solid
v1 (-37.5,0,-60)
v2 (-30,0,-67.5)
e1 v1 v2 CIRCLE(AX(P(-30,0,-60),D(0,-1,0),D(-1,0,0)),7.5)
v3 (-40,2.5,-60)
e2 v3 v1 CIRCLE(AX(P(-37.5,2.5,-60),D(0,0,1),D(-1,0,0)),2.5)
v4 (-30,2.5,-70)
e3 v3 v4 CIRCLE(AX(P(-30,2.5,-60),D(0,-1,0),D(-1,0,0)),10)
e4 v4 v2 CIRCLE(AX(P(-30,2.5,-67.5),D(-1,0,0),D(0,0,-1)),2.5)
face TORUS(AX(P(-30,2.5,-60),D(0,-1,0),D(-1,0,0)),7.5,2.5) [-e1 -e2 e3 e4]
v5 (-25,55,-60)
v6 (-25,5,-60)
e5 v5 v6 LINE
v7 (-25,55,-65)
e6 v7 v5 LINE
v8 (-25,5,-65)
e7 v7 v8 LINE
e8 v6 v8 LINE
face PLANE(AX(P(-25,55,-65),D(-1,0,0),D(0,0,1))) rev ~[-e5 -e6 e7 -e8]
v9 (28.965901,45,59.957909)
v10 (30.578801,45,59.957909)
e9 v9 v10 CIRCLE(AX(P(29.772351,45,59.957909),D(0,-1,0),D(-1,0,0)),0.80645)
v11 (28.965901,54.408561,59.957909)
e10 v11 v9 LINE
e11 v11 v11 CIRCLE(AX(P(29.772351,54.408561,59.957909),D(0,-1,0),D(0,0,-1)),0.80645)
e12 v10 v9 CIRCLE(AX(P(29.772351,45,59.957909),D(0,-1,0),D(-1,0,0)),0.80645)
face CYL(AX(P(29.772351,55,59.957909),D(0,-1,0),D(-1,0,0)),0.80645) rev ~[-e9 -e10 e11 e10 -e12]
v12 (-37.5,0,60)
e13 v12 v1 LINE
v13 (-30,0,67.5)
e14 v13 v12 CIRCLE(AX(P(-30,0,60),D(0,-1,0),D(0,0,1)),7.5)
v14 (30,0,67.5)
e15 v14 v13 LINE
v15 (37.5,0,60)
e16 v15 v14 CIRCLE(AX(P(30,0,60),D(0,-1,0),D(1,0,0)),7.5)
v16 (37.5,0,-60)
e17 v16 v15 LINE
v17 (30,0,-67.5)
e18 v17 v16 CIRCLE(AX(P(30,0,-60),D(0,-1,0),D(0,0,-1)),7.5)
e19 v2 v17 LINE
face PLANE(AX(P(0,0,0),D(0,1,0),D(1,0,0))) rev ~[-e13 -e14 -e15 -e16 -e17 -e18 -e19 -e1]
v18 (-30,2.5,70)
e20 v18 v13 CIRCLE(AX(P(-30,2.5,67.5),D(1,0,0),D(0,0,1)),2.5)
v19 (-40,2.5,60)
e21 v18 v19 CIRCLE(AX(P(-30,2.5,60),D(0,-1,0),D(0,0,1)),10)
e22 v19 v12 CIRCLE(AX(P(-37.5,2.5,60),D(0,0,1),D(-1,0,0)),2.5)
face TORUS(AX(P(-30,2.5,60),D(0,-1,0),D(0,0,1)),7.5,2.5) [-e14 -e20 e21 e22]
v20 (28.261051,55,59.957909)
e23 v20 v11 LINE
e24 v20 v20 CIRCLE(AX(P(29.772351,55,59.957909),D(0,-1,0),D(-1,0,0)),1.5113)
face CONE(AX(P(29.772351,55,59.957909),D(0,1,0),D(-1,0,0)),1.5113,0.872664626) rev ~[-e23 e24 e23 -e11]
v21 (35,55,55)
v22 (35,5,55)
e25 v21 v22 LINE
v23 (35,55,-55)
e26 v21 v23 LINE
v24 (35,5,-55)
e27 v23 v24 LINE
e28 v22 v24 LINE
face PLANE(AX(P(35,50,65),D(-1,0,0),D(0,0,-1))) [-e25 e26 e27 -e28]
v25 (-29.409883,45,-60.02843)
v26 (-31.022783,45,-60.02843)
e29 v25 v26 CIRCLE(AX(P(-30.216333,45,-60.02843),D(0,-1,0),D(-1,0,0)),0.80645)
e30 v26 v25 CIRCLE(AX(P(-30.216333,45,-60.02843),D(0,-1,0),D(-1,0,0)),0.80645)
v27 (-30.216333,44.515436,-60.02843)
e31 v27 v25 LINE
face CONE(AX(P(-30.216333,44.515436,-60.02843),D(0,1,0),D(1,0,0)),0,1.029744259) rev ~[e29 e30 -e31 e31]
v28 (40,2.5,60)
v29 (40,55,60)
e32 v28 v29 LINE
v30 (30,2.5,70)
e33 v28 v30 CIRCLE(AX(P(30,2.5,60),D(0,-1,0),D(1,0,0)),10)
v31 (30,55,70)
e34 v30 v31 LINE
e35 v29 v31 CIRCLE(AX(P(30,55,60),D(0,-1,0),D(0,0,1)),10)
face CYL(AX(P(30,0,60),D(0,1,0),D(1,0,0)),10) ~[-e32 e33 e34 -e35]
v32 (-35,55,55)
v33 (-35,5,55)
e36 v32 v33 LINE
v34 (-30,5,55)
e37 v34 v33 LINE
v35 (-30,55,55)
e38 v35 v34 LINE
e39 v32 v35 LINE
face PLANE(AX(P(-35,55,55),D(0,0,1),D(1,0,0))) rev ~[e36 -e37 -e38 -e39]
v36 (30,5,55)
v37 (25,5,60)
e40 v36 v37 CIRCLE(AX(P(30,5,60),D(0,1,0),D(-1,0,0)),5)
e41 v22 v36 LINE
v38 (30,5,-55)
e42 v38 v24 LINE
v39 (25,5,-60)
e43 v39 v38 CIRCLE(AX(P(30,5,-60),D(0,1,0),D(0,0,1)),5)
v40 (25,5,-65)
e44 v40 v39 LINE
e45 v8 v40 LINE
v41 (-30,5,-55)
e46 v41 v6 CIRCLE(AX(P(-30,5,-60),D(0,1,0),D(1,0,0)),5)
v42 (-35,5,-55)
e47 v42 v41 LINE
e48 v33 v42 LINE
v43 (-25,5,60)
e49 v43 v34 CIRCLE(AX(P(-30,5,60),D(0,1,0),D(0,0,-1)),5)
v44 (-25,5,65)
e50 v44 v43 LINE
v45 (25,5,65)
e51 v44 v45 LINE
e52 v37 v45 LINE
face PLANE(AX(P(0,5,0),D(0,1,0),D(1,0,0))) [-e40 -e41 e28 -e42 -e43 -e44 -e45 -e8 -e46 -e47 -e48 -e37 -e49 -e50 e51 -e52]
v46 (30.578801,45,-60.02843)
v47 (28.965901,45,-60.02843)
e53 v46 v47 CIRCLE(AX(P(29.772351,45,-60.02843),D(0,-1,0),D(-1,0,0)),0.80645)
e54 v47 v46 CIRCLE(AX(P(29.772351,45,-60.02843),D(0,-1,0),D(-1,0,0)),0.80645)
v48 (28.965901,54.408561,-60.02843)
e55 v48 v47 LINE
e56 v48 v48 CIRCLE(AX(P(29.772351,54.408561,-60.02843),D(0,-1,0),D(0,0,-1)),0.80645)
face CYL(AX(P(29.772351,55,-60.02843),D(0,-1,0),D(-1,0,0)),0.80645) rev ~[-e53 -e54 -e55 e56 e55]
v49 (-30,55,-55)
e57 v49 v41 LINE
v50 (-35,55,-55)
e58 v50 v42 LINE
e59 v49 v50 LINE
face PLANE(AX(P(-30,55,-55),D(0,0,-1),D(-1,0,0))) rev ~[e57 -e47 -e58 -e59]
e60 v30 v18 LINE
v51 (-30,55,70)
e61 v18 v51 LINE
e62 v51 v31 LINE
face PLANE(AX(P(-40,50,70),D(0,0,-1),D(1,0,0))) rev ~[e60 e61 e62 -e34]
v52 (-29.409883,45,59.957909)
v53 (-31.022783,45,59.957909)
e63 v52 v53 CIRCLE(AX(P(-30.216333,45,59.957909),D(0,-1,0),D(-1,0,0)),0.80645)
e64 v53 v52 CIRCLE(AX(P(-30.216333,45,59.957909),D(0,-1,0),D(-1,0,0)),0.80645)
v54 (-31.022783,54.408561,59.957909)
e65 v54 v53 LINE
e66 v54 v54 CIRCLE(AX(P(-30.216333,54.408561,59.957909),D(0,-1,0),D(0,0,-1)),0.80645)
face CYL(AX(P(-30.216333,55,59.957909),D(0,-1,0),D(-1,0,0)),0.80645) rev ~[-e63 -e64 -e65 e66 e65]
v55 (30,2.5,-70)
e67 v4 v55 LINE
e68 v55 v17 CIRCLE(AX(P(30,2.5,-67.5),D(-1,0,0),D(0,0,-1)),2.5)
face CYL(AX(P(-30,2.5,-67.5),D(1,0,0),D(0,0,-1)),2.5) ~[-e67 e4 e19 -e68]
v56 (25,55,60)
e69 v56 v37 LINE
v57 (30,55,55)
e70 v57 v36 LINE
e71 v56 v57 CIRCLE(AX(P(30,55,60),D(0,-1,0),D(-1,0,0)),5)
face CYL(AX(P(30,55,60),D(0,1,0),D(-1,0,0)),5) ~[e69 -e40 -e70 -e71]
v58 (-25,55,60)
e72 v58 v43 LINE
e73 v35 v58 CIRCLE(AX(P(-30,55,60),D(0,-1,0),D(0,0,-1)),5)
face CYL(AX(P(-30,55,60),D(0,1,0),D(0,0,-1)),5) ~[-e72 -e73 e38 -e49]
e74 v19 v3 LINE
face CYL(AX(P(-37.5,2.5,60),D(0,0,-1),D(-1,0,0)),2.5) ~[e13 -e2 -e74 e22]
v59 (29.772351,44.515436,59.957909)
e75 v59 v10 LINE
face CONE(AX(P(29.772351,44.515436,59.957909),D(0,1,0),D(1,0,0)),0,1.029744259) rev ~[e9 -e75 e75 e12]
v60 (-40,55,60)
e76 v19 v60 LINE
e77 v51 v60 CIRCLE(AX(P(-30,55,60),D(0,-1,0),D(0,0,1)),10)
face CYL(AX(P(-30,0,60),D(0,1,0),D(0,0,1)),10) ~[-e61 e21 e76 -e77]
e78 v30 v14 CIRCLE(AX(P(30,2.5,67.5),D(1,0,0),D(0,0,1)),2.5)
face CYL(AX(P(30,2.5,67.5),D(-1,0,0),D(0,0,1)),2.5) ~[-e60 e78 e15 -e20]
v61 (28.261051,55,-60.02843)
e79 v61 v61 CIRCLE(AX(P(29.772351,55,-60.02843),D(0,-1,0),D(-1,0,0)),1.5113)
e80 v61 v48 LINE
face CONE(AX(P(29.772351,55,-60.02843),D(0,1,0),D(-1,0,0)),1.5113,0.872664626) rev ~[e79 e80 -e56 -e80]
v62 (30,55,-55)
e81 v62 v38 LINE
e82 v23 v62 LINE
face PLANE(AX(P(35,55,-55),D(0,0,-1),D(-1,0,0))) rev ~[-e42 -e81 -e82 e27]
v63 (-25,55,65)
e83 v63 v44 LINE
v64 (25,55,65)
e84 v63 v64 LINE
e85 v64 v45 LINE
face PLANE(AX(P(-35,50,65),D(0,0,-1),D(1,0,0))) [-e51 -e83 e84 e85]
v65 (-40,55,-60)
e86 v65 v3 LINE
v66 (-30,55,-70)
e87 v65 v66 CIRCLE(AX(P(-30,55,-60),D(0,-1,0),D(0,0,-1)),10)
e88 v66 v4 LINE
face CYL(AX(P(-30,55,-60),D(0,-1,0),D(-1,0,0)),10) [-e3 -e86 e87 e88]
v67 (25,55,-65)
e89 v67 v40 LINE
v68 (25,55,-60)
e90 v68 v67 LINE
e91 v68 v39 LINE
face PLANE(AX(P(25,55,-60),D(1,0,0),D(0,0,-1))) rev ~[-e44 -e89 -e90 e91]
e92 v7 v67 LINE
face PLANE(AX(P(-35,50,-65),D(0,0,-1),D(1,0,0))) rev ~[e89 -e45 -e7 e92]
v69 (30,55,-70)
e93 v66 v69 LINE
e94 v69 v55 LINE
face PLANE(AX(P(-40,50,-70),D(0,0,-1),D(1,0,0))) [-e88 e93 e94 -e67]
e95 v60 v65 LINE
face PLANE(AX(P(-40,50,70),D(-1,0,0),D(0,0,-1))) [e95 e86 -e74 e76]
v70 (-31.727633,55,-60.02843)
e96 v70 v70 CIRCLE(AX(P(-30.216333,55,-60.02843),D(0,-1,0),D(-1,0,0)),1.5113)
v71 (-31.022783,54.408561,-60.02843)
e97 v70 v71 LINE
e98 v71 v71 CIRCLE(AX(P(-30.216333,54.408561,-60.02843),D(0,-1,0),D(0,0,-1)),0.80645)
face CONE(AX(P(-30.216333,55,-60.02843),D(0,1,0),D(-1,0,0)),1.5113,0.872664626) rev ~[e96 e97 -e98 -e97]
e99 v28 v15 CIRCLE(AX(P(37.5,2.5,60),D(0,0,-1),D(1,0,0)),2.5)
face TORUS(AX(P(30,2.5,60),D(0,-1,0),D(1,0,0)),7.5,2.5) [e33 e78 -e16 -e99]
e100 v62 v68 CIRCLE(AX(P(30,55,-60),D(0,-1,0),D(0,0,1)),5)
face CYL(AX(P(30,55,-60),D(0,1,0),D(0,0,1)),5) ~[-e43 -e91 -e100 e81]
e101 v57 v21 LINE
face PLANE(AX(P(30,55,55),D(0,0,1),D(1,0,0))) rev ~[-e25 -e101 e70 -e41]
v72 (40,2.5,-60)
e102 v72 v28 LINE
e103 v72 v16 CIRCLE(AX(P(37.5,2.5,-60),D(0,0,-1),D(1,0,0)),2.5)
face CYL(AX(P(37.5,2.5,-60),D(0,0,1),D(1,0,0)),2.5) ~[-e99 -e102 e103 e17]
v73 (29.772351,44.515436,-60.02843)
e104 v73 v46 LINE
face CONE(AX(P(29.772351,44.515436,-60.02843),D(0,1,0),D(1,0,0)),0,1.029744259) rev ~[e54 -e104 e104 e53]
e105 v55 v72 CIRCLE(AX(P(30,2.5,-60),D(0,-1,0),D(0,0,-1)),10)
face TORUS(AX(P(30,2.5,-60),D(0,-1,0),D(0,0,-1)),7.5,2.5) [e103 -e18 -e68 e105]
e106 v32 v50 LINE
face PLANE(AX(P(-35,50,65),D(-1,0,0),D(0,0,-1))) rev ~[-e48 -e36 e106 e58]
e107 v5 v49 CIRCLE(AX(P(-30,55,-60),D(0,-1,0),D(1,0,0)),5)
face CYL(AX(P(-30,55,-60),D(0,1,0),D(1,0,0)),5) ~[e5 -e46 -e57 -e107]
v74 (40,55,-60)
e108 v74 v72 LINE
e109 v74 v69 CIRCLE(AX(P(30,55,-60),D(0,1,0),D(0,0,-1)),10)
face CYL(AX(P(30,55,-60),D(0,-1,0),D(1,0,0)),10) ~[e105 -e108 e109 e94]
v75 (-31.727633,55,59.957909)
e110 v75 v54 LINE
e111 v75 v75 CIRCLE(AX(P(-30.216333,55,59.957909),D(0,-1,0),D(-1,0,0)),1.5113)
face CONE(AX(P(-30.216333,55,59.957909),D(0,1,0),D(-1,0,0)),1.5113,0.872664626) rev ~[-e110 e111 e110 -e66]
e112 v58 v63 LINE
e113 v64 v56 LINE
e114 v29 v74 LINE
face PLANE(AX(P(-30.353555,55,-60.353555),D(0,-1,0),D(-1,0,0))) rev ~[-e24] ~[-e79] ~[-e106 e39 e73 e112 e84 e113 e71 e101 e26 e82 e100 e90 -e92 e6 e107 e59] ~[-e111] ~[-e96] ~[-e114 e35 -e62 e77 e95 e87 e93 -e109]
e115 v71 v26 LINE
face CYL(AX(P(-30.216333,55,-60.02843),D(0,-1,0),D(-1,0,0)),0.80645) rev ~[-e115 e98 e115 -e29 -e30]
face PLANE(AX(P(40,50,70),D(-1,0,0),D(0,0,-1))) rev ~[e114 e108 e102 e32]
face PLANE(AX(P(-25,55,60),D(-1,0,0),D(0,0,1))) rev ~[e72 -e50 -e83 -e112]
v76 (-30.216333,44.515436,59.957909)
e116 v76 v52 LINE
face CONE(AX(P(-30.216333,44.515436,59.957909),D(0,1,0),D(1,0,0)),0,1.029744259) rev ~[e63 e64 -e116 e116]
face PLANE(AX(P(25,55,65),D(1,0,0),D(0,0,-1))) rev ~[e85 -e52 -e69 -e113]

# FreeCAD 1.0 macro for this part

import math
import FreeCAD as App
import Part
import Sketcher

V = App.Vector
Q = App.Units.Quantity


def edges_at(feature, points):
    """Names of the edges that pass closest to the given points."""
    edges = feature.Shape.Edges
    near = lambda p: min(range(len(edges)), key=lambda i: edges[i].distToShape(Part.Vertex(*p))[0])
    return sorted({f"Edge{near(p) + 1}" for p in points})


def faces_at(feature, points):
    """Names of the faces that lie closest to the given points."""
    faces = feature.Shape.Faces
    near = lambda p: min(range(len(faces)), key=lambda i: faces[i].distToShape(Part.Vertex(*p))[0])
    return sorted({f"Face{near(p) + 1}" for p in points})

doc = App.newDocument("Part")
body = doc.addObject("PartDesign::Body", "Body")

# Sketch on XZ plane
sketch1 = doc.addObject("Sketcher::SketchObject", "Sketch")
body.addObject(sketch1)
sketch1.AttachmentSupport = (doc.XZ_Plane, [""])
sketch1.MapMode = "FlatFace"
sketch1.addGeometry([
    Part.LineSegment(V(-40, -70, 0), V(-40, 70, 0)),
    Part.LineSegment(V(-40, 70, 0), V(40, 70, 0)),
    Part.LineSegment(V(40, 70, 0), V(40, -70, 0)),
    Part.LineSegment(V(40, -70, 0), V(-40, -70, 0)),
], False)
sketch1.addConstraint([
    Sketcher.Constraint("Coincident", 0, 2, 1, 1),
    Sketcher.Constraint("Coincident", 1, 2, 2, 1),
    Sketcher.Constraint("Coincident", 2, 2, 3, 1),
    Sketcher.Constraint("Coincident", 3, 2, 0, 1),
    Sketcher.Constraint("Vertical", 0),
    Sketcher.Constraint("Horizontal", 1),
    Sketcher.Constraint("Vertical", 2),
    Sketcher.Constraint("Horizontal", 3),
    Sketcher.Constraint("Symmetric", 0, 2, 2, 2, -1, 1),
    Sketcher.Constraint("DistanceX", 1, 1, 1, 2, Q("80 mm")),
    Sketcher.Constraint("DistanceY", 0, 1, 0, 2, Q("140 mm")),
])
pad1 = doc.addObject("PartDesign::Pad", "Pad")
body.addObject(pad1)
pad1.Profile = sketch1
pad1.Length = 50
pad1.Reversed = True
doc.recompute()

thickness = doc.addObject("PartDesign::Thickness", "Thickness")
body.addObject(thickness)
thickness.Base = (pad1, faces_at(pad1, [(0, 50, 0)]))
thickness.Value = 5
thickness.Reversed = True
thickness.Join = "Intersection"

# Sketch on XZ plane
sketch2 = doc.addObject("Sketcher::SketchObject", "Sketch001")
body.addObject(sketch2)
sketch2.AttachmentSupport = (doc.XZ_Plane, [""])
sketch2.MapMode = "FlatFace"
sketch2.AttachmentOffset = App.Placement(V(0, 0, -50), App.Rotation())
sketch2.addGeometry([
    Part.LineSegment(V(-40, -70, 0), V(-40, 70, 0)),  # 0
    Part.LineSegment(V(-40, 70, 0), V(40, 70, 0)),  # 1
    Part.LineSegment(V(40, 70, 0), V(40, -70, 0)),  # 2
    Part.LineSegment(V(40, -70, 0), V(-40, -70, 0)),  # 3
    Part.LineSegment(V(35, 65, 0), V(-35, 65, 0)),  # 4
    Part.LineSegment(V(-35, 65, 0), V(-35, -65, 0)),  # 5
    Part.LineSegment(V(-35, -65, 0), V(35, -65, 0)),  # 6
    Part.LineSegment(V(35, -65, 0), V(35, 65, 0)),  # 7
], False)
sketch2.addConstraint([
    Sketcher.Constraint("Coincident", 0, 2, 1, 1),
    Sketcher.Constraint("Coincident", 1, 2, 2, 1),
    Sketcher.Constraint("Coincident", 2, 2, 3, 1),
    Sketcher.Constraint("Coincident", 3, 2, 0, 1),
    Sketcher.Constraint("Coincident", 4, 2, 5, 1),
    Sketcher.Constraint("Coincident", 5, 2, 6, 1),
    Sketcher.Constraint("Coincident", 6, 2, 7, 1),
    Sketcher.Constraint("Coincident", 7, 2, 4, 1),
    Sketcher.Constraint("Vertical", 0),
    Sketcher.Constraint("Horizontal", 1),
    Sketcher.Constraint("Vertical", 2),
    Sketcher.Constraint("Horizontal", 3),
    Sketcher.Constraint("Horizontal", 4),
    Sketcher.Constraint("Vertical", 5),
    Sketcher.Constraint("Horizontal", 6),
    Sketcher.Constraint("Vertical", 7),
    Sketcher.Constraint("Symmetric", 0, 2, 2, 2, -1, 1),
    Sketcher.Constraint("Symmetric", 4, 2, 6, 2, -1, 1),
    Sketcher.Constraint("DistanceX", 1, 1, 1, 2, Q("80 mm")),
    Sketcher.Constraint("DistanceX", 4, 2, 4, 1, Q("70 mm")),
    Sketcher.Constraint("DistanceY", 0, 1, 0, 2, Q("140 mm")),
    Sketcher.Constraint("DistanceY", 5, 2, 5, 1, Q("130 mm")),
])
pad2 = doc.addObject("PartDesign::Pad", "Pad001")
body.addObject(pad2)
pad2.Profile = sketch2
pad2.Length = 5
pad2.Reversed = True

# Sketch on XZ plane
sketch3 = doc.addObject("Sketcher::SketchObject", "Sketch002")
body.addObject(sketch3)
sketch3.AttachmentSupport = (doc.XZ_Plane, [""])
sketch3.MapMode = "FlatFace"
sketch3.AttachmentOffset = App.Placement(V(0, 0, -55), App.Rotation())
sketch3.addGeometry([
    Part.LineSegment(V(-35, 55, 0), V(-35, 65, 0)),  # 0
    Part.LineSegment(V(-35, 65, 0), V(-25, 65, 0)),  # 1
    Part.LineSegment(V(-25, 65, 0), V(-25, 60, 0)),  # 2
    Part.ArcOfCircle(Part.Circle(V(-30, 60, 0), V(0, 0, 1), 5), math.radians(-90), math.radians(0)),  # 3
    Part.LineSegment(V(-30, 55, 0), V(-35, 55, 0)),  # 4
], False)
sketch3.addConstraint([
    Sketcher.Constraint("Coincident", 0, 2, 1, 1),
    Sketcher.Constraint("Coincident", 1, 2, 2, 1),
    Sketcher.Constraint("Tangent", 2, 2, 3, 2),
    Sketcher.Constraint("Tangent", 3, 1, 4, 1),
    Sketcher.Constraint("Coincident", 4, 2, 0, 1),
    Sketcher.Constraint("Vertical", 0),
    Sketcher.Constraint("Horizontal", 1),
    Sketcher.Constraint("Vertical", 2),
    Sketcher.Constraint("Horizontal", 4),
    Sketcher.Constraint("Equal", 1, 0),
    Sketcher.Constraint("Radius", 3, Q("5 mm")),
    Sketcher.Constraint("DistanceX", 1, 1, 1, 2, Q("10 mm")),
    Sketcher.Constraint("DistanceX", 3, 3, -1, 1, Q("30 mm")),
    Sketcher.Constraint("DistanceY", -1, 1, 3, 3, Q("60 mm")),
])
pad3 = doc.addObject("PartDesign::Pad", "Pad002")
body.addObject(pad3)
pad3.Profile = sketch3
pad3.Type = "UpToFirst"

# Sketch on XZ plane
sketch4 = doc.addObject("Sketcher::SketchObject", "Sketch003")
body.addObject(sketch4)
sketch4.AttachmentSupport = (doc.XZ_Plane, [""])
sketch4.MapMode = "FlatFace"
sketch4.AttachmentOffset = App.Placement(V(0, 0, -55), App.Rotation())
sketch4.addGeometry([
    Part.LineSegment(V(35, 55, 0), V(30, 55, 0)),  # 0
    Part.ArcOfCircle(Part.Circle(V(30, 60, 0), V(0, 0, 1), 5), math.radians(180), math.radians(270)),  # 1
    Part.LineSegment(V(25, 60, 0), V(25, 65, 0)),  # 2
    Part.LineSegment(V(25, 65, 0), V(35, 65, 0)),  # 3
    Part.LineSegment(V(35, 65, 0), V(35, 55, 0)),  # 4
], False)
sketch4.addConstraint([
    Sketcher.Constraint("Tangent", 0, 2, 1, 2),
    Sketcher.Constraint("Tangent", 1, 1, 2, 1),
    Sketcher.Constraint("Coincident", 2, 2, 3, 1),
    Sketcher.Constraint("Coincident", 3, 2, 4, 1),
    Sketcher.Constraint("Coincident", 4, 2, 0, 1),
    Sketcher.Constraint("Horizontal", 0),
    Sketcher.Constraint("Vertical", 2),
    Sketcher.Constraint("Horizontal", 3),
    Sketcher.Constraint("Vertical", 4),
    Sketcher.Constraint("Equal", 0, 2),
    Sketcher.Constraint("Radius", 1, Q("5 mm")),
    Sketcher.Constraint("DistanceX", 0, 2, 0, 1, Q("5 mm")),
    Sketcher.Constraint("DistanceX", -1, 1, 1, 3, Q("30 mm")),
    Sketcher.Constraint("DistanceY", -1, 1, 1, 3, Q("60 mm")),
])
pad4 = doc.addObject("PartDesign::Pad", "Pad003")
body.addObject(pad4)
pad4.Profile = sketch4
pad4.Type = "UpToFirst"

# Sketch on XZ plane
sketch5 = doc.addObject("Sketcher::SketchObject", "Sketch004")
body.addObject(sketch5)
sketch5.AttachmentSupport = (doc.XZ_Plane, [""])
sketch5.MapMode = "FlatFace"
sketch5.AttachmentOffset = App.Placement(V(0, 0, -55), App.Rotation())
sketch5.addGeometry([
    Part.LineSegment(V(25, -65, 0), V(25, -60, 0)),  # 0
    Part.ArcOfCircle(Part.Circle(V(30, -60, 0), V(0, 0, 1), 5), math.radians(90), math.radians(180)),  # 1
    Part.LineSegment(V(30, -55, 0), V(35, -55, 0)),  # 2
    Part.LineSegment(V(35, -55, 0), V(35, -65, 0)),  # 3
    Part.LineSegment(V(35, -65, 0), V(25, -65, 0)),  # 4
], False)
sketch5.addConstraint([
    Sketcher.Constraint("Tangent", 0, 2, 1, 2),
    Sketcher.Constraint("Tangent", 1, 1, 2, 1),
    Sketcher.Constraint("Coincident", 2, 2, 3, 1),
    Sketcher.Constraint("Coincident", 3, 2, 4, 1),
    Sketcher.Constraint("Coincident", 4, 2, 0, 1),
    Sketcher.Constraint("Vertical", 0),
    Sketcher.Constraint("Horizontal", 2),
    Sketcher.Constraint("Vertical", 3),
    Sketcher.Constraint("Horizontal", 4),
    Sketcher.Constraint("Equal", 2, 0),
    Sketcher.Constraint("Radius", 1, Q("5 mm")),
    Sketcher.Constraint("DistanceX", 2, 1, 2, 2, Q("5 mm")),
    Sketcher.Constraint("DistanceX", -1, 1, 1, 3, Q("30 mm")),
    Sketcher.Constraint("DistanceY", 1, 3, -1, 1, Q("60 mm")),
])
pad5 = doc.addObject("PartDesign::Pad", "Pad004")
body.addObject(pad5)
pad5.Profile = sketch5
pad5.Type = "UpToFirst"

# Sketch on XZ plane
sketch6 = doc.addObject("Sketcher::SketchObject", "Sketch005")
body.addObject(sketch6)
sketch6.AttachmentSupport = (doc.XZ_Plane, [""])
sketch6.MapMode = "FlatFace"
sketch6.AttachmentOffset = App.Placement(V(0, 0, -55), App.Rotation())
sketch6.addGeometry([
    Part.LineSegment(V(-35, -55, 0), V(-30, -55, 0)),  # 0
    Part.ArcOfCircle(Part.Circle(V(-30, -60, 0), V(0, 0, 1), 5), math.radians(0), math.radians(90)),  # 1
    Part.LineSegment(V(-25, -60, 0), V(-25, -65, 0)),  # 2
    Part.LineSegment(V(-25, -65, 0), V(-35, -65, 0)),  # 3
    Part.LineSegment(V(-35, -65, 0), V(-35, -55, 0)),  # 4
], False)
sketch6.addConstraint([
    Sketcher.Constraint("Tangent", 0, 2, 1, 2),
    Sketcher.Constraint("Tangent", 1, 1, 2, 1),
    Sketcher.Constraint("Coincident", 2, 2, 3, 1),
    Sketcher.Constraint("Coincident", 3, 2, 4, 1),
    Sketcher.Constraint("Coincident", 4, 2, 0, 1),
    Sketcher.Constraint("Horizontal", 0),
    Sketcher.Constraint("Vertical", 2),
    Sketcher.Constraint("Horizontal", 3),
    Sketcher.Constraint("Vertical", 4),
    Sketcher.Constraint("Equal", 0, 2),
    Sketcher.Constraint("Radius", 1, Q("5 mm")),
    Sketcher.Constraint("DistanceX", 0, 1, 0, 2, Q("5 mm")),
    Sketcher.Constraint("DistanceX", 1, 3, -1, 1, Q("30 mm")),
    Sketcher.Constraint("DistanceY", 1, 3, -1, 1, Q("60 mm")),
])
pad6 = doc.addObject("PartDesign::Pad", "Pad005")
body.addObject(pad6)
pad6.Profile = sketch6
pad6.Type = "UpToFirst"

# Sketch on XZ plane
sketch7 = doc.addObject("Sketcher::SketchObject", "Sketch006")
body.addObject(sketch7)
sketch7.AttachmentSupport = (doc.XZ_Plane, [""])
sketch7.MapMode = "FlatFace"
sketch7.AttachmentOffset = App.Placement(V(0, 0, -55), App.Rotation())
sketch7.addGeometry([
    Part.Circle(V(-30.2, 60, 0), V(0, 0, 1), 0.8),
    Part.Circle(V(29.8, 60, 0), V(0, 0, 1), 0.8),
    Part.Circle(V(29.8, -60, 0), V(0, 0, 1), 0.8),
    Part.Circle(V(-30.2, -60, 0), V(0, 0, 1), 0.8),
], False)
sketch7.addConstraint([
    Sketcher.Constraint("Equal", 0, 1),
    Sketcher.Constraint("Equal", 1, 2),
    Sketcher.Constraint("Equal", 2, 3),
    Sketcher.Constraint("Horizontal", 0, 3, 1, 3),
    Sketcher.Constraint("Horizontal", 2, 3, 3, 3),
    Sketcher.Constraint("Vertical", 1, 3, 2, 3),
    Sketcher.Constraint("Vertical", 0, 3, 3, 3),
    Sketcher.Constraint("Diameter", 0, Q("1.6129 mm")),
    Sketcher.Constraint("DistanceY", -1, 1, 0, 3, Q("59.957909 mm")),
    Sketcher.Constraint("DistanceX", -1, 1, 1, 3, Q("29.772351 mm")),
    Sketcher.Constraint("DistanceY", 2, 3, -1, 1, Q("60.02843 mm")),
    Sketcher.Constraint("DistanceX", 0, 3, -1, 1, Q("30.216333 mm")),
])
doc.recompute()
hole = doc.addObject("PartDesign::Hole", "Hole")
body.addObject(hole)
hole.Profile = sketch7
hole.ThreadType = "None"
hole.Diameter = 1.6129
hole.DepthType = "Dimension"
hole.Depth = 10
hole.DrillPoint = "Angled"
hole.DrillPointAngle = 118
hole.HoleCutType = "Countersink"
hole.HoleCutDiameter = 3.0226
hole.HoleCutCountersinkAngle = 100
hole.Reversed = True
doc.recompute()

fillet = doc.addObject("PartDesign::Fillet", "Fillet")
body.addObject(fillet)
fillet.Base = (hole, edges_at(hole, [
    (40, 27.5, 70),
    (-40, 27.5, 70),
    (-40, 27.5, -70),
    (40, 27.5, -70),
]))
fillet.Radius = 10
doc.recompute()

fillet2 = doc.addObject("PartDesign::Fillet", "Fillet001")
body.addObject(fillet2)
fillet2.Base = (fillet, edges_at(fillet, [
    (-40, 0, 0),
    (40, 0, 0),
    (0, 0, 70),
    (0, 0, -70),
    (37.071, 0, 67.071),
    (-37.071, 0, 67.071),
    (37.071, 0, -67.071),
    (-37.071, 0, -67.071),
]))
fillet2.Radius = 2.5

doc.recompute()
